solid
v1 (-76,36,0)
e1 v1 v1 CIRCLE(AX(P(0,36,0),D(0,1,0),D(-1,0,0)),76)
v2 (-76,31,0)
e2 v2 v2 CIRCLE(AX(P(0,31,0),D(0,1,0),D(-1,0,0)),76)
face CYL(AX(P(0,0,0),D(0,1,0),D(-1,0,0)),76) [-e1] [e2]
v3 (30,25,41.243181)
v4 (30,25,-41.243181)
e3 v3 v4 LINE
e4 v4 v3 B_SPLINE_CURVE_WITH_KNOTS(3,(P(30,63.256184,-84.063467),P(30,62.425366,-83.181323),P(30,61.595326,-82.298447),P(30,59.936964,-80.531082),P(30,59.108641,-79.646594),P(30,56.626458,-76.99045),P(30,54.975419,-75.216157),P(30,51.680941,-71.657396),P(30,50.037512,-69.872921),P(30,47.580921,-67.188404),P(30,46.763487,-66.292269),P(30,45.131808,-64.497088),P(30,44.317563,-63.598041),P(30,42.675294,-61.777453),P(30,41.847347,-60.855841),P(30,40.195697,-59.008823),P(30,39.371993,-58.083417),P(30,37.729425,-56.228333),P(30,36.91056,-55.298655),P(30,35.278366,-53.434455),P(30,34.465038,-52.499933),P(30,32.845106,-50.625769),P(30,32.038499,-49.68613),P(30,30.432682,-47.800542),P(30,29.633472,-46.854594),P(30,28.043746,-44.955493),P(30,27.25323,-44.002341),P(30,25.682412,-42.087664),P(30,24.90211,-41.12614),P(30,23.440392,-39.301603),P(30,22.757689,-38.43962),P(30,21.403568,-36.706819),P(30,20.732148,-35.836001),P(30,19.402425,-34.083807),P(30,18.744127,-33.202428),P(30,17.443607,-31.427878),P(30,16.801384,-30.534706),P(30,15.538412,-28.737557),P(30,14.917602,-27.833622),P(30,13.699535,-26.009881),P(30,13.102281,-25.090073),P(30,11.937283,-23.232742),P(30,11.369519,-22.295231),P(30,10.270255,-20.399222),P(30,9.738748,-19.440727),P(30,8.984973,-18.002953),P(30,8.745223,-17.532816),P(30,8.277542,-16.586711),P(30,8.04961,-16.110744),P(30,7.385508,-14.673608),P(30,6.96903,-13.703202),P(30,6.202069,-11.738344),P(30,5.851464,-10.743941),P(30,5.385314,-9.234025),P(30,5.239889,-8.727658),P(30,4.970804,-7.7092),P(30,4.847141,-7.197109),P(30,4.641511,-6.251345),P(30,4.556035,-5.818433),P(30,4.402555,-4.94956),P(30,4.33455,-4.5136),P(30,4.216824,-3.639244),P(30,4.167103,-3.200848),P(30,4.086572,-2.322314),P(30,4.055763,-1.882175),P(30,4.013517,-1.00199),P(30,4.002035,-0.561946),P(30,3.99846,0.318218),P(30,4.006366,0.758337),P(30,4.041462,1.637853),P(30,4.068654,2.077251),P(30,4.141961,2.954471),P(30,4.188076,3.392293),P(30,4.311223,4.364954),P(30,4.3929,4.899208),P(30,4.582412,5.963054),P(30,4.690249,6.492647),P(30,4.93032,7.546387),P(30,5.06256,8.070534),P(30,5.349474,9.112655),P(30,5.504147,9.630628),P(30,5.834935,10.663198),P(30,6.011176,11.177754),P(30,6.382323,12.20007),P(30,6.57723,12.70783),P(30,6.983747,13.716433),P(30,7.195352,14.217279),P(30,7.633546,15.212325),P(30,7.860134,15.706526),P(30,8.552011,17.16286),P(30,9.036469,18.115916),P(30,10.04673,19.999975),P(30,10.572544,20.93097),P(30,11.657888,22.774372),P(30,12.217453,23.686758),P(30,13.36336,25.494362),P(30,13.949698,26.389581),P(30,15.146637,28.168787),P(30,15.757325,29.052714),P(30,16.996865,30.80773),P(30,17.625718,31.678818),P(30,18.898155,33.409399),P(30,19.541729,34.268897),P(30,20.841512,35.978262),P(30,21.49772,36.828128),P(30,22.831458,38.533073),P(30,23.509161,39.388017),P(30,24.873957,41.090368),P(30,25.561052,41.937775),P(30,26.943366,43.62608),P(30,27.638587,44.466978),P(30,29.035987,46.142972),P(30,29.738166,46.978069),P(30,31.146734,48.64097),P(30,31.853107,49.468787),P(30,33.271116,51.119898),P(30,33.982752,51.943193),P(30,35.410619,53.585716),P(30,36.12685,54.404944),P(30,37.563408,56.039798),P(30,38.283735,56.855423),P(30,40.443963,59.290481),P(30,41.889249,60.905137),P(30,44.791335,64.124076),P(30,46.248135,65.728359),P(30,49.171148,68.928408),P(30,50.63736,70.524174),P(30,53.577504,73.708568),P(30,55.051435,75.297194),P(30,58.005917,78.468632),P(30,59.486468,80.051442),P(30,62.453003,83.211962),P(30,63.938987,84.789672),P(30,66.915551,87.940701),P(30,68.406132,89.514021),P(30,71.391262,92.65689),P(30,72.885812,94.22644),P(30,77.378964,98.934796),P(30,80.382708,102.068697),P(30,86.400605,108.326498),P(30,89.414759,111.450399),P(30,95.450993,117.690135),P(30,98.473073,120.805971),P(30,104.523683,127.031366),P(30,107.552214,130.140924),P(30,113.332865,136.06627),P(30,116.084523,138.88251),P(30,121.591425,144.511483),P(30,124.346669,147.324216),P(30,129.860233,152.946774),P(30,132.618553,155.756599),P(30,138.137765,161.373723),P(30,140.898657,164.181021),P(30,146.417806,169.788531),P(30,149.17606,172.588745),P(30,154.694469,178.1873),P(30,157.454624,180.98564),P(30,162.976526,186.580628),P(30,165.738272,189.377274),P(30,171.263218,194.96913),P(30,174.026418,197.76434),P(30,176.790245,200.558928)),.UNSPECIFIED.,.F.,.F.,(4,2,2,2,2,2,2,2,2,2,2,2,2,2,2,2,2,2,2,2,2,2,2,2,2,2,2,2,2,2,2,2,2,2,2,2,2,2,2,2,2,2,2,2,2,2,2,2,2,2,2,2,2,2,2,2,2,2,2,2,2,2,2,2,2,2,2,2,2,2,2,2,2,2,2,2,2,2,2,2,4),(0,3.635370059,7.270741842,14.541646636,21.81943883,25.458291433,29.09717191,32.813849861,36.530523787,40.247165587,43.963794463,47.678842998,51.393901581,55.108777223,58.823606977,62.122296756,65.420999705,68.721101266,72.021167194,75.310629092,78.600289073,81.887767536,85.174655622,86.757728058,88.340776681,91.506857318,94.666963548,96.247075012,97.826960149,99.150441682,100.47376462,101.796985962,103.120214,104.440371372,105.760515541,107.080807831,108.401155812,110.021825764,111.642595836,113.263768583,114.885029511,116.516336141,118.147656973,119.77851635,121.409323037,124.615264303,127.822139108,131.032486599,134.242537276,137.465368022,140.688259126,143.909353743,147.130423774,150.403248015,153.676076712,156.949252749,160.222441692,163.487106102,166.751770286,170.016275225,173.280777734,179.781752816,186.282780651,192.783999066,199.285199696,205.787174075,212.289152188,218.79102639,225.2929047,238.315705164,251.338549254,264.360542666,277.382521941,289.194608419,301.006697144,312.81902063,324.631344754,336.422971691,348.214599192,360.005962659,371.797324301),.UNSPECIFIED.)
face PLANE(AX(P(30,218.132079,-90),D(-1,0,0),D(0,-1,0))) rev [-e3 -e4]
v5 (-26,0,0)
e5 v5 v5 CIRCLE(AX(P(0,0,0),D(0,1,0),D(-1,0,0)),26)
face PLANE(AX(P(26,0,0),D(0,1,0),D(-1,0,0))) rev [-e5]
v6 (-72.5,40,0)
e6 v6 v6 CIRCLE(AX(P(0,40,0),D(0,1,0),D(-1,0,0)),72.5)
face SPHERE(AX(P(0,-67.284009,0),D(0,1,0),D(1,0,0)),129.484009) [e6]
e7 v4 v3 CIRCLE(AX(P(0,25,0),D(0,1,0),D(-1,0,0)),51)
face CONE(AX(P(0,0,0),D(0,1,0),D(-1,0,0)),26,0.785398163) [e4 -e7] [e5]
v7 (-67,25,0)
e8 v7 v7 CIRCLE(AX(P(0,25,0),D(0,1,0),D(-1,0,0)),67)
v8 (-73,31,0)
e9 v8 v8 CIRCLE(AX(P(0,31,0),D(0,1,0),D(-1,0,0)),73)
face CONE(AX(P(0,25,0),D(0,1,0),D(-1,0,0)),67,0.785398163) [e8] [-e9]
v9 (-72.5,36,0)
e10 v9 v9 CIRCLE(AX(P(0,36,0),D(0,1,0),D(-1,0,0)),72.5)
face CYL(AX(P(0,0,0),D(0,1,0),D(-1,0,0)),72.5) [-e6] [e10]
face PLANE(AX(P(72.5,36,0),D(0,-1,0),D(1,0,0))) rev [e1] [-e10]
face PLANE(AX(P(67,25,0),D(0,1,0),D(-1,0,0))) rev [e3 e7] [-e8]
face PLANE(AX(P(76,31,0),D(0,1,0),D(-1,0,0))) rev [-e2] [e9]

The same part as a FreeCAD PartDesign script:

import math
import FreeCAD as App
import Part
import Sketcher
Q = App.Units.Quantity


def add_polygon(sketch, points):
    """Adds a closed chain of lines whose ends are joined by coincident constraints."""
    first, n = sketch.GeometryCount, len(points)
    for a, b in zip(points, points[1:] + points[:1]):
        sketch.addGeometry(Part.LineSegment(App.Vector(*a, 0), App.Vector(*b, 0)), False)
    for i in range(n):
        sketch.addConstraint(Sketcher.Constraint("Coincident", first + i, 2, first + (i + 1) % n, 1))

doc = App.newDocument("Part")
body = doc.addObject("PartDesign::Body", "Body")

# Sketch on XY plane
sketch1 = body.newObject("Sketcher::SketchObject", "Sketch")
sketch1.AttachmentSupport = (doc.getObject("XY_Plane"), [""])
sketch1.MapMode = "FlatFace"
sketch1.addGeometry([
    Part.LineSegment(App.Vector(72.5, 36, 0), App.Vector(72.5, 40, 0)),  # 0
    Part.ArcOfCircle(Part.Circle(App.Vector(0, -67.3, 0), App.Vector(0, 0, 1), 129.5), math.radians(56), math.radians(90)),  # 1
    Part.LineSegment(App.Vector(0, 62.2, 0), App.Vector(0, 0, 0)),  # 2
    Part.LineSegment(App.Vector(0, 0, 0), App.Vector(26, 0, 0)),  # 3
    Part.LineSegment(App.Vector(26, 0, 0), App.Vector(51, 25, 0)),  # 4
    Part.LineSegment(App.Vector(51, 25, 0), App.Vector(67, 25, 0)),  # 5
    Part.LineSegment(App.Vector(67, 25, 0), App.Vector(73, 31, 0)),  # 6
    Part.LineSegment(App.Vector(73, 31, 0), App.Vector(76, 31, 0)),  # 7
    Part.LineSegment(App.Vector(76, 31, 0), App.Vector(76, 36, 0)),  # 8
    Part.LineSegment(App.Vector(76, 36, 0), App.Vector(72.5, 36, 0)),  # 9
], False)
sketch1.addConstraint([
    Sketcher.Constraint("Coincident", 0, 2, 1, 1),
    Sketcher.Constraint("Coincident", 1, 2, 2, 1),
    Sketcher.Constraint("Coincident", 2, 2, 3, 1),
    Sketcher.Constraint("Coincident", 3, 2, 4, 1),
    Sketcher.Constraint("Coincident", 4, 2, 5, 1),
    Sketcher.Constraint("Coincident", 5, 2, 6, 1),
    Sketcher.Constraint("Coincident", 6, 2, 7, 1),
    Sketcher.Constraint("Coincident", 7, 2, 8, 1),
    Sketcher.Constraint("Coincident", 8, 2, 9, 1),
    Sketcher.Constraint("Coincident", 9, 2, 0, 1),
    Sketcher.Constraint("Vertical", 0),
    Sketcher.Constraint("Vertical", 2),
    Sketcher.Constraint("Horizontal", 3),
    Sketcher.Constraint("Horizontal", 5),
    Sketcher.Constraint("Horizontal", 7),
    Sketcher.Constraint("Vertical", 8),
    Sketcher.Constraint("Horizontal", 9),
    Sketcher.Constraint("Coincident", 2, 2, -1, 1),
    Sketcher.Constraint("PointOnObject", 1, 3, -2),
    Sketcher.Constraint("Parallel", 4, 6),
    Sketcher.Constraint("DistanceX", 3, 1, 3, 2, 26.0),
    Sketcher.Constraint("DistanceX", 5, 1, 5, 2, 16.0),
    Sketcher.Constraint("DistanceX", 7, 1, 7, 2, 3.0),
    Sketcher.Constraint("DistanceY", 0, 1, 0, 2, 4.0),
    Sketcher.Constraint("DistanceY", 8, 1, 8, 2, 5.0),
    Sketcher.Constraint("Angle", 4, Q("45 deg")),
    Sketcher.Constraint("DistanceX", 9, 2, 9, 1, 3.5),
    Sketcher.Constraint("DistanceY", 2, 2, 2, 1, 62.2),
    Sketcher.Constraint("DistanceY", -1, 1, 0, 2, 40.0),
    Sketcher.Constraint("DistanceX", -1, 1, 4, 2, 51.0),
])
revolution = body.newObject("PartDesign::Revolution", "Revolution")
revolution.Profile = sketch1
revolution.ReferenceAxis = (sketch1, ["V_Axis"])
revolution.Angle = 360

# Sketch on XZ plane
sketch2 = body.newObject("Sketcher::SketchObject", "Sketch001")
sketch2.AttachmentSupport = (doc.getObject("XZ_Plane"), [""])
sketch2.MapMode = "FlatFace"
add_polygon(sketch2, [(30, 90), (30, -90), (100, -90), (100, 90)])  # lines 0-3
sketch2.addConstraint([
    Sketcher.Constraint("Vertical", 0),
    Sketcher.Constraint("Horizontal", 1),
    Sketcher.Constraint("Vertical", 2),
    Sketcher.Constraint("Horizontal", 3),
    Sketcher.Constraint("DistanceX", 1, 1, 1, 2, 70.0),
    Sketcher.Constraint("DistanceY", 0, 2, 0, 1, 180.0),
    Sketcher.Constraint("DistanceX", -1, 1, 0, 2, 30.0),
    Sketcher.Constraint("DistanceY", 0, 2, -1, 1, 90.0),
])
pocket1 = body.newObject("PartDesign::Pocket", "Pocket")
pocket1.Profile = sketch2
pocket1.Length = 25

doc.recompute()
